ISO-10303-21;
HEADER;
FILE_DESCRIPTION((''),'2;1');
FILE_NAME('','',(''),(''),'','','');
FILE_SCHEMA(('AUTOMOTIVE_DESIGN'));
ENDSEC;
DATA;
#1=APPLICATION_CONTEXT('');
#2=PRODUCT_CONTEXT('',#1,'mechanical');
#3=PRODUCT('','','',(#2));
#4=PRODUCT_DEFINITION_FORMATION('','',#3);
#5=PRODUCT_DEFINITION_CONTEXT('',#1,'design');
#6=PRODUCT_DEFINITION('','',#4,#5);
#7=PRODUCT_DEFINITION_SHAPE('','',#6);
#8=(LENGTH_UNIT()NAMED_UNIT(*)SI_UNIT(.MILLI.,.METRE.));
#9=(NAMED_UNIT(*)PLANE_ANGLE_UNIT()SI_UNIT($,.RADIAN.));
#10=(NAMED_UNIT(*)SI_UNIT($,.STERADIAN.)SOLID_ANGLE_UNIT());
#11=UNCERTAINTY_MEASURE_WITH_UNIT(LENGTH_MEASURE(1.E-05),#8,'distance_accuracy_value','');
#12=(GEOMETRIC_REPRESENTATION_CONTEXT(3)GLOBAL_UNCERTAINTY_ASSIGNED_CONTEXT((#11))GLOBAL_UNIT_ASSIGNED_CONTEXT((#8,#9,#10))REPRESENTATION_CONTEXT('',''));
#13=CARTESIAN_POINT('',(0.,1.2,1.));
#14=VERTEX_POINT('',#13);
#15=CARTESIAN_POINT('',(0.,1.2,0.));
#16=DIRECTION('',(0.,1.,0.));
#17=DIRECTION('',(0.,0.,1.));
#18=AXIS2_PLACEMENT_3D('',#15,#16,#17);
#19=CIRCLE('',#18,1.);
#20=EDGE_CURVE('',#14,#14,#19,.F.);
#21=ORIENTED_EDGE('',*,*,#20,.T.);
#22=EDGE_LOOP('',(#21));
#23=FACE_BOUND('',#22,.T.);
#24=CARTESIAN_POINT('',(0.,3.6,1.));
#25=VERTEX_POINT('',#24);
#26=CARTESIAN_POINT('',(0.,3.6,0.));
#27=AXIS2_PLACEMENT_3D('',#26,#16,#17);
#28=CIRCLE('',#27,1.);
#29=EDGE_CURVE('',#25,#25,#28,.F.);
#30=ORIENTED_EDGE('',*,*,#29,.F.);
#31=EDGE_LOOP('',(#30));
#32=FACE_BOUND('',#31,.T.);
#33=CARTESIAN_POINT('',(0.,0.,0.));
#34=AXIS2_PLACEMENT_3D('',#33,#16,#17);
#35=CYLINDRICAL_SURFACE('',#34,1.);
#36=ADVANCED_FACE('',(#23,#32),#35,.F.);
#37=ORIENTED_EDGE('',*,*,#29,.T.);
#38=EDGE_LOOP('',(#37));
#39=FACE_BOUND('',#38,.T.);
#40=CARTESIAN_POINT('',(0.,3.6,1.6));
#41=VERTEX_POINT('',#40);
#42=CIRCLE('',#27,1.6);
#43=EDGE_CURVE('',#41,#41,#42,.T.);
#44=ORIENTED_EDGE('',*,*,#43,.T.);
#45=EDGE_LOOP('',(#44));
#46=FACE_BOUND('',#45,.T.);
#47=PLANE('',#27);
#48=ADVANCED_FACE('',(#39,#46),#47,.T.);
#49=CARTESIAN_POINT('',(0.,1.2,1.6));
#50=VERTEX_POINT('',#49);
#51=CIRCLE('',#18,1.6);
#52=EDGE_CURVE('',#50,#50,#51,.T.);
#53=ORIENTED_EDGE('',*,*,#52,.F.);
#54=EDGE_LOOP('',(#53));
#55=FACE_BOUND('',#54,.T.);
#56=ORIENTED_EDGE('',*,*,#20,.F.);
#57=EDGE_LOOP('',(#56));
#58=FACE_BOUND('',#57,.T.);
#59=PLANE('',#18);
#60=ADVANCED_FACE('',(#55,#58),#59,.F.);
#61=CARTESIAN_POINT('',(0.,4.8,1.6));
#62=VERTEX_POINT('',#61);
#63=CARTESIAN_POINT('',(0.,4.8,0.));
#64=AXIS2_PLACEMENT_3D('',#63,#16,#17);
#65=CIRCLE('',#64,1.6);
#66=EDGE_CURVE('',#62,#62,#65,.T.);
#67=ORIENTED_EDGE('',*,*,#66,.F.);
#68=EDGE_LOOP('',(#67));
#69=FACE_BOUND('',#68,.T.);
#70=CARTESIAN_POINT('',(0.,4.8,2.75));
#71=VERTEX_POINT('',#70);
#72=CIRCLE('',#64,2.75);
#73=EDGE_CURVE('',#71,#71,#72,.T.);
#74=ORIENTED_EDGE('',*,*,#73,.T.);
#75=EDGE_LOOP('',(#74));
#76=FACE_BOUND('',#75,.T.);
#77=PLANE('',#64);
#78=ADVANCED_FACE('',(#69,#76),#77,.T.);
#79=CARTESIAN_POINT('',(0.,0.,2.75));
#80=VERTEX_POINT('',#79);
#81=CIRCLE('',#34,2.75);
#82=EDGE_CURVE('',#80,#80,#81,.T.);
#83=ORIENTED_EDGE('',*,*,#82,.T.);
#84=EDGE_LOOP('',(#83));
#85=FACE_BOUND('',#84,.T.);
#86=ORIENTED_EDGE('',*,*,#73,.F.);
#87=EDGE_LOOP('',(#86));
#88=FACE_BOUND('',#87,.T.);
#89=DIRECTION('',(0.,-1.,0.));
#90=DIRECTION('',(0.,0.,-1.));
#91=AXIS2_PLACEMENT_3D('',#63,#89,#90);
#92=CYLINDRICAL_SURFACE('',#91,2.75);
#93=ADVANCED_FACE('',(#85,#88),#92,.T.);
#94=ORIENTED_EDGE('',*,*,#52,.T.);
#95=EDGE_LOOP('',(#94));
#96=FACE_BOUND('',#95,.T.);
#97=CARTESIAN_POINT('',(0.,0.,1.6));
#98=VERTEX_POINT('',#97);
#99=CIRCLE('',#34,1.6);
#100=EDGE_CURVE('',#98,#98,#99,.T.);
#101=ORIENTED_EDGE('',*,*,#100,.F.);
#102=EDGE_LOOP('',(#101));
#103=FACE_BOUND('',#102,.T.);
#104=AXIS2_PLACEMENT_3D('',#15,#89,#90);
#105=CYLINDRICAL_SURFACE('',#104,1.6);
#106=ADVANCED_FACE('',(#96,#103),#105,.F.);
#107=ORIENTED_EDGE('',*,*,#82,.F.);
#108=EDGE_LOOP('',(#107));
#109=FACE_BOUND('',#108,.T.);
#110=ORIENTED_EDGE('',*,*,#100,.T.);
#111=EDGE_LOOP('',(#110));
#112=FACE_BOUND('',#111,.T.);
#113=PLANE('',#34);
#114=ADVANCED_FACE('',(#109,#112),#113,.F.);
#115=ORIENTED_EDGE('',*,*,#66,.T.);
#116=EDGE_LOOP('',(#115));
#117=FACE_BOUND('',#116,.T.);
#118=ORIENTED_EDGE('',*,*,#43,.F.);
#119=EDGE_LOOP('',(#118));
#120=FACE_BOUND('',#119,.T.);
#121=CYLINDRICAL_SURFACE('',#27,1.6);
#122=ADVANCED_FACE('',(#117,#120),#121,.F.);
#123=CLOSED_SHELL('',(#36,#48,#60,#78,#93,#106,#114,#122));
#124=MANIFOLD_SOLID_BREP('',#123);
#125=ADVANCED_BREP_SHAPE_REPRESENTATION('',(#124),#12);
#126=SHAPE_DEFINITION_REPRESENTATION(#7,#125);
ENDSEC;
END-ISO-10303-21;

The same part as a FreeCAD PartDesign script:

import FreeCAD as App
import Part
import Sketcher

V = App.Vector

doc = App.newDocument("Part")
body = doc.addObject("PartDesign::Body", "Body")

# Sketch on XZ plane
sketch1 = body.newObject("Sketcher::SketchObject", "Sketch")
sketch1.AttachmentSupport = (doc.getObject("XZ_Plane"), [""])
sketch1.MapMode = "FlatFace"
sketch1.addGeometry(Part.Circle(V(0, 0, 0), V(0, 0, 1), 2.8), False)
sketch1.addConstraint([
    Sketcher.Constraint("Coincident", 0, 3, -1, 1),
    Sketcher.Constraint("Diameter", 0, 5.5),
])
pad1 = body.newObject("PartDesign::Pad", "Pad")
pad1.Profile = sketch1
pad1.Length = 4.8
pad1.Reversed = True

# Sketch on XZ plane
sketch2 = body.newObject("Sketcher::SketchObject", "Sketch001")
sketch2.AttachmentSupport = (doc.getObject("XZ_Plane"), [""])
sketch2.MapMode = "FlatFace"
sketch2.AttachmentOffset = App.Placement(V(0, 0, -4.8), App.Rotation())
sketch2.addGeometry(Part.Circle(V(0, 0, 0), V(0, 0, 1), 1), False)
sketch2.addConstraint([
    Sketcher.Constraint("Coincident", 0, 3, -1, 1),
    Sketcher.Constraint("Diameter", 0, 2.0),
])
pocket1 = body.newObject("PartDesign::Pocket", "Pocket")
pocket1.Profile = sketch2
pocket1.Type = "ThroughAll"
pocket1.Reversed = True

# Sketch on XZ plane
sketch3 = body.newObject("Sketcher::SketchObject", "Sketch002")
sketch3.AttachmentSupport = (doc.getObject("XZ_Plane"), [""])
sketch3.MapMode = "FlatFace"
sketch3.AttachmentOffset = App.Placement(V(0, 0, -4.8), App.Rotation())
sketch3.addGeometry(Part.Circle(V(0, 0, 0), V(0, 0, 1), 1.6), False)
sketch3.addConstraint([
    Sketcher.Constraint("Coincident", 0, 3, -1, 1),
    Sketcher.Constraint("Diameter", 0, 3.2),
])
pocket2 = body.newObject("PartDesign::Pocket", "Pocket001")
pocket2.Profile = sketch3
pocket2.Length = 1.2
pocket2.Reversed = True

# Sketch on XZ plane
sketch4 = body.newObject("Sketcher::SketchObject", "Sketch003")
sketch4.AttachmentSupport = (doc.getObject("XZ_Plane"), [""])
sketch4.MapMode = "FlatFace"
sketch4.AttachmentOffset = App.Placement(V(0, 0, -1.2), App.Rotation())
sketch4.addGeometry(Part.Circle(V(0, 0, 0), V(0, 0, 1), 1.6), False)
sketch4.addConstraint([
    Sketcher.Constraint("Coincident", 0, 3, -1, 1),
    Sketcher.Constraint("Diameter", 0, 3.2),
])
pocket3 = body.newObject("PartDesign::Pocket", "Pocket002")
pocket3.Profile = sketch4
pocket3.Length = 1.2
pocket3.Reversed = True

doc.recompute()
